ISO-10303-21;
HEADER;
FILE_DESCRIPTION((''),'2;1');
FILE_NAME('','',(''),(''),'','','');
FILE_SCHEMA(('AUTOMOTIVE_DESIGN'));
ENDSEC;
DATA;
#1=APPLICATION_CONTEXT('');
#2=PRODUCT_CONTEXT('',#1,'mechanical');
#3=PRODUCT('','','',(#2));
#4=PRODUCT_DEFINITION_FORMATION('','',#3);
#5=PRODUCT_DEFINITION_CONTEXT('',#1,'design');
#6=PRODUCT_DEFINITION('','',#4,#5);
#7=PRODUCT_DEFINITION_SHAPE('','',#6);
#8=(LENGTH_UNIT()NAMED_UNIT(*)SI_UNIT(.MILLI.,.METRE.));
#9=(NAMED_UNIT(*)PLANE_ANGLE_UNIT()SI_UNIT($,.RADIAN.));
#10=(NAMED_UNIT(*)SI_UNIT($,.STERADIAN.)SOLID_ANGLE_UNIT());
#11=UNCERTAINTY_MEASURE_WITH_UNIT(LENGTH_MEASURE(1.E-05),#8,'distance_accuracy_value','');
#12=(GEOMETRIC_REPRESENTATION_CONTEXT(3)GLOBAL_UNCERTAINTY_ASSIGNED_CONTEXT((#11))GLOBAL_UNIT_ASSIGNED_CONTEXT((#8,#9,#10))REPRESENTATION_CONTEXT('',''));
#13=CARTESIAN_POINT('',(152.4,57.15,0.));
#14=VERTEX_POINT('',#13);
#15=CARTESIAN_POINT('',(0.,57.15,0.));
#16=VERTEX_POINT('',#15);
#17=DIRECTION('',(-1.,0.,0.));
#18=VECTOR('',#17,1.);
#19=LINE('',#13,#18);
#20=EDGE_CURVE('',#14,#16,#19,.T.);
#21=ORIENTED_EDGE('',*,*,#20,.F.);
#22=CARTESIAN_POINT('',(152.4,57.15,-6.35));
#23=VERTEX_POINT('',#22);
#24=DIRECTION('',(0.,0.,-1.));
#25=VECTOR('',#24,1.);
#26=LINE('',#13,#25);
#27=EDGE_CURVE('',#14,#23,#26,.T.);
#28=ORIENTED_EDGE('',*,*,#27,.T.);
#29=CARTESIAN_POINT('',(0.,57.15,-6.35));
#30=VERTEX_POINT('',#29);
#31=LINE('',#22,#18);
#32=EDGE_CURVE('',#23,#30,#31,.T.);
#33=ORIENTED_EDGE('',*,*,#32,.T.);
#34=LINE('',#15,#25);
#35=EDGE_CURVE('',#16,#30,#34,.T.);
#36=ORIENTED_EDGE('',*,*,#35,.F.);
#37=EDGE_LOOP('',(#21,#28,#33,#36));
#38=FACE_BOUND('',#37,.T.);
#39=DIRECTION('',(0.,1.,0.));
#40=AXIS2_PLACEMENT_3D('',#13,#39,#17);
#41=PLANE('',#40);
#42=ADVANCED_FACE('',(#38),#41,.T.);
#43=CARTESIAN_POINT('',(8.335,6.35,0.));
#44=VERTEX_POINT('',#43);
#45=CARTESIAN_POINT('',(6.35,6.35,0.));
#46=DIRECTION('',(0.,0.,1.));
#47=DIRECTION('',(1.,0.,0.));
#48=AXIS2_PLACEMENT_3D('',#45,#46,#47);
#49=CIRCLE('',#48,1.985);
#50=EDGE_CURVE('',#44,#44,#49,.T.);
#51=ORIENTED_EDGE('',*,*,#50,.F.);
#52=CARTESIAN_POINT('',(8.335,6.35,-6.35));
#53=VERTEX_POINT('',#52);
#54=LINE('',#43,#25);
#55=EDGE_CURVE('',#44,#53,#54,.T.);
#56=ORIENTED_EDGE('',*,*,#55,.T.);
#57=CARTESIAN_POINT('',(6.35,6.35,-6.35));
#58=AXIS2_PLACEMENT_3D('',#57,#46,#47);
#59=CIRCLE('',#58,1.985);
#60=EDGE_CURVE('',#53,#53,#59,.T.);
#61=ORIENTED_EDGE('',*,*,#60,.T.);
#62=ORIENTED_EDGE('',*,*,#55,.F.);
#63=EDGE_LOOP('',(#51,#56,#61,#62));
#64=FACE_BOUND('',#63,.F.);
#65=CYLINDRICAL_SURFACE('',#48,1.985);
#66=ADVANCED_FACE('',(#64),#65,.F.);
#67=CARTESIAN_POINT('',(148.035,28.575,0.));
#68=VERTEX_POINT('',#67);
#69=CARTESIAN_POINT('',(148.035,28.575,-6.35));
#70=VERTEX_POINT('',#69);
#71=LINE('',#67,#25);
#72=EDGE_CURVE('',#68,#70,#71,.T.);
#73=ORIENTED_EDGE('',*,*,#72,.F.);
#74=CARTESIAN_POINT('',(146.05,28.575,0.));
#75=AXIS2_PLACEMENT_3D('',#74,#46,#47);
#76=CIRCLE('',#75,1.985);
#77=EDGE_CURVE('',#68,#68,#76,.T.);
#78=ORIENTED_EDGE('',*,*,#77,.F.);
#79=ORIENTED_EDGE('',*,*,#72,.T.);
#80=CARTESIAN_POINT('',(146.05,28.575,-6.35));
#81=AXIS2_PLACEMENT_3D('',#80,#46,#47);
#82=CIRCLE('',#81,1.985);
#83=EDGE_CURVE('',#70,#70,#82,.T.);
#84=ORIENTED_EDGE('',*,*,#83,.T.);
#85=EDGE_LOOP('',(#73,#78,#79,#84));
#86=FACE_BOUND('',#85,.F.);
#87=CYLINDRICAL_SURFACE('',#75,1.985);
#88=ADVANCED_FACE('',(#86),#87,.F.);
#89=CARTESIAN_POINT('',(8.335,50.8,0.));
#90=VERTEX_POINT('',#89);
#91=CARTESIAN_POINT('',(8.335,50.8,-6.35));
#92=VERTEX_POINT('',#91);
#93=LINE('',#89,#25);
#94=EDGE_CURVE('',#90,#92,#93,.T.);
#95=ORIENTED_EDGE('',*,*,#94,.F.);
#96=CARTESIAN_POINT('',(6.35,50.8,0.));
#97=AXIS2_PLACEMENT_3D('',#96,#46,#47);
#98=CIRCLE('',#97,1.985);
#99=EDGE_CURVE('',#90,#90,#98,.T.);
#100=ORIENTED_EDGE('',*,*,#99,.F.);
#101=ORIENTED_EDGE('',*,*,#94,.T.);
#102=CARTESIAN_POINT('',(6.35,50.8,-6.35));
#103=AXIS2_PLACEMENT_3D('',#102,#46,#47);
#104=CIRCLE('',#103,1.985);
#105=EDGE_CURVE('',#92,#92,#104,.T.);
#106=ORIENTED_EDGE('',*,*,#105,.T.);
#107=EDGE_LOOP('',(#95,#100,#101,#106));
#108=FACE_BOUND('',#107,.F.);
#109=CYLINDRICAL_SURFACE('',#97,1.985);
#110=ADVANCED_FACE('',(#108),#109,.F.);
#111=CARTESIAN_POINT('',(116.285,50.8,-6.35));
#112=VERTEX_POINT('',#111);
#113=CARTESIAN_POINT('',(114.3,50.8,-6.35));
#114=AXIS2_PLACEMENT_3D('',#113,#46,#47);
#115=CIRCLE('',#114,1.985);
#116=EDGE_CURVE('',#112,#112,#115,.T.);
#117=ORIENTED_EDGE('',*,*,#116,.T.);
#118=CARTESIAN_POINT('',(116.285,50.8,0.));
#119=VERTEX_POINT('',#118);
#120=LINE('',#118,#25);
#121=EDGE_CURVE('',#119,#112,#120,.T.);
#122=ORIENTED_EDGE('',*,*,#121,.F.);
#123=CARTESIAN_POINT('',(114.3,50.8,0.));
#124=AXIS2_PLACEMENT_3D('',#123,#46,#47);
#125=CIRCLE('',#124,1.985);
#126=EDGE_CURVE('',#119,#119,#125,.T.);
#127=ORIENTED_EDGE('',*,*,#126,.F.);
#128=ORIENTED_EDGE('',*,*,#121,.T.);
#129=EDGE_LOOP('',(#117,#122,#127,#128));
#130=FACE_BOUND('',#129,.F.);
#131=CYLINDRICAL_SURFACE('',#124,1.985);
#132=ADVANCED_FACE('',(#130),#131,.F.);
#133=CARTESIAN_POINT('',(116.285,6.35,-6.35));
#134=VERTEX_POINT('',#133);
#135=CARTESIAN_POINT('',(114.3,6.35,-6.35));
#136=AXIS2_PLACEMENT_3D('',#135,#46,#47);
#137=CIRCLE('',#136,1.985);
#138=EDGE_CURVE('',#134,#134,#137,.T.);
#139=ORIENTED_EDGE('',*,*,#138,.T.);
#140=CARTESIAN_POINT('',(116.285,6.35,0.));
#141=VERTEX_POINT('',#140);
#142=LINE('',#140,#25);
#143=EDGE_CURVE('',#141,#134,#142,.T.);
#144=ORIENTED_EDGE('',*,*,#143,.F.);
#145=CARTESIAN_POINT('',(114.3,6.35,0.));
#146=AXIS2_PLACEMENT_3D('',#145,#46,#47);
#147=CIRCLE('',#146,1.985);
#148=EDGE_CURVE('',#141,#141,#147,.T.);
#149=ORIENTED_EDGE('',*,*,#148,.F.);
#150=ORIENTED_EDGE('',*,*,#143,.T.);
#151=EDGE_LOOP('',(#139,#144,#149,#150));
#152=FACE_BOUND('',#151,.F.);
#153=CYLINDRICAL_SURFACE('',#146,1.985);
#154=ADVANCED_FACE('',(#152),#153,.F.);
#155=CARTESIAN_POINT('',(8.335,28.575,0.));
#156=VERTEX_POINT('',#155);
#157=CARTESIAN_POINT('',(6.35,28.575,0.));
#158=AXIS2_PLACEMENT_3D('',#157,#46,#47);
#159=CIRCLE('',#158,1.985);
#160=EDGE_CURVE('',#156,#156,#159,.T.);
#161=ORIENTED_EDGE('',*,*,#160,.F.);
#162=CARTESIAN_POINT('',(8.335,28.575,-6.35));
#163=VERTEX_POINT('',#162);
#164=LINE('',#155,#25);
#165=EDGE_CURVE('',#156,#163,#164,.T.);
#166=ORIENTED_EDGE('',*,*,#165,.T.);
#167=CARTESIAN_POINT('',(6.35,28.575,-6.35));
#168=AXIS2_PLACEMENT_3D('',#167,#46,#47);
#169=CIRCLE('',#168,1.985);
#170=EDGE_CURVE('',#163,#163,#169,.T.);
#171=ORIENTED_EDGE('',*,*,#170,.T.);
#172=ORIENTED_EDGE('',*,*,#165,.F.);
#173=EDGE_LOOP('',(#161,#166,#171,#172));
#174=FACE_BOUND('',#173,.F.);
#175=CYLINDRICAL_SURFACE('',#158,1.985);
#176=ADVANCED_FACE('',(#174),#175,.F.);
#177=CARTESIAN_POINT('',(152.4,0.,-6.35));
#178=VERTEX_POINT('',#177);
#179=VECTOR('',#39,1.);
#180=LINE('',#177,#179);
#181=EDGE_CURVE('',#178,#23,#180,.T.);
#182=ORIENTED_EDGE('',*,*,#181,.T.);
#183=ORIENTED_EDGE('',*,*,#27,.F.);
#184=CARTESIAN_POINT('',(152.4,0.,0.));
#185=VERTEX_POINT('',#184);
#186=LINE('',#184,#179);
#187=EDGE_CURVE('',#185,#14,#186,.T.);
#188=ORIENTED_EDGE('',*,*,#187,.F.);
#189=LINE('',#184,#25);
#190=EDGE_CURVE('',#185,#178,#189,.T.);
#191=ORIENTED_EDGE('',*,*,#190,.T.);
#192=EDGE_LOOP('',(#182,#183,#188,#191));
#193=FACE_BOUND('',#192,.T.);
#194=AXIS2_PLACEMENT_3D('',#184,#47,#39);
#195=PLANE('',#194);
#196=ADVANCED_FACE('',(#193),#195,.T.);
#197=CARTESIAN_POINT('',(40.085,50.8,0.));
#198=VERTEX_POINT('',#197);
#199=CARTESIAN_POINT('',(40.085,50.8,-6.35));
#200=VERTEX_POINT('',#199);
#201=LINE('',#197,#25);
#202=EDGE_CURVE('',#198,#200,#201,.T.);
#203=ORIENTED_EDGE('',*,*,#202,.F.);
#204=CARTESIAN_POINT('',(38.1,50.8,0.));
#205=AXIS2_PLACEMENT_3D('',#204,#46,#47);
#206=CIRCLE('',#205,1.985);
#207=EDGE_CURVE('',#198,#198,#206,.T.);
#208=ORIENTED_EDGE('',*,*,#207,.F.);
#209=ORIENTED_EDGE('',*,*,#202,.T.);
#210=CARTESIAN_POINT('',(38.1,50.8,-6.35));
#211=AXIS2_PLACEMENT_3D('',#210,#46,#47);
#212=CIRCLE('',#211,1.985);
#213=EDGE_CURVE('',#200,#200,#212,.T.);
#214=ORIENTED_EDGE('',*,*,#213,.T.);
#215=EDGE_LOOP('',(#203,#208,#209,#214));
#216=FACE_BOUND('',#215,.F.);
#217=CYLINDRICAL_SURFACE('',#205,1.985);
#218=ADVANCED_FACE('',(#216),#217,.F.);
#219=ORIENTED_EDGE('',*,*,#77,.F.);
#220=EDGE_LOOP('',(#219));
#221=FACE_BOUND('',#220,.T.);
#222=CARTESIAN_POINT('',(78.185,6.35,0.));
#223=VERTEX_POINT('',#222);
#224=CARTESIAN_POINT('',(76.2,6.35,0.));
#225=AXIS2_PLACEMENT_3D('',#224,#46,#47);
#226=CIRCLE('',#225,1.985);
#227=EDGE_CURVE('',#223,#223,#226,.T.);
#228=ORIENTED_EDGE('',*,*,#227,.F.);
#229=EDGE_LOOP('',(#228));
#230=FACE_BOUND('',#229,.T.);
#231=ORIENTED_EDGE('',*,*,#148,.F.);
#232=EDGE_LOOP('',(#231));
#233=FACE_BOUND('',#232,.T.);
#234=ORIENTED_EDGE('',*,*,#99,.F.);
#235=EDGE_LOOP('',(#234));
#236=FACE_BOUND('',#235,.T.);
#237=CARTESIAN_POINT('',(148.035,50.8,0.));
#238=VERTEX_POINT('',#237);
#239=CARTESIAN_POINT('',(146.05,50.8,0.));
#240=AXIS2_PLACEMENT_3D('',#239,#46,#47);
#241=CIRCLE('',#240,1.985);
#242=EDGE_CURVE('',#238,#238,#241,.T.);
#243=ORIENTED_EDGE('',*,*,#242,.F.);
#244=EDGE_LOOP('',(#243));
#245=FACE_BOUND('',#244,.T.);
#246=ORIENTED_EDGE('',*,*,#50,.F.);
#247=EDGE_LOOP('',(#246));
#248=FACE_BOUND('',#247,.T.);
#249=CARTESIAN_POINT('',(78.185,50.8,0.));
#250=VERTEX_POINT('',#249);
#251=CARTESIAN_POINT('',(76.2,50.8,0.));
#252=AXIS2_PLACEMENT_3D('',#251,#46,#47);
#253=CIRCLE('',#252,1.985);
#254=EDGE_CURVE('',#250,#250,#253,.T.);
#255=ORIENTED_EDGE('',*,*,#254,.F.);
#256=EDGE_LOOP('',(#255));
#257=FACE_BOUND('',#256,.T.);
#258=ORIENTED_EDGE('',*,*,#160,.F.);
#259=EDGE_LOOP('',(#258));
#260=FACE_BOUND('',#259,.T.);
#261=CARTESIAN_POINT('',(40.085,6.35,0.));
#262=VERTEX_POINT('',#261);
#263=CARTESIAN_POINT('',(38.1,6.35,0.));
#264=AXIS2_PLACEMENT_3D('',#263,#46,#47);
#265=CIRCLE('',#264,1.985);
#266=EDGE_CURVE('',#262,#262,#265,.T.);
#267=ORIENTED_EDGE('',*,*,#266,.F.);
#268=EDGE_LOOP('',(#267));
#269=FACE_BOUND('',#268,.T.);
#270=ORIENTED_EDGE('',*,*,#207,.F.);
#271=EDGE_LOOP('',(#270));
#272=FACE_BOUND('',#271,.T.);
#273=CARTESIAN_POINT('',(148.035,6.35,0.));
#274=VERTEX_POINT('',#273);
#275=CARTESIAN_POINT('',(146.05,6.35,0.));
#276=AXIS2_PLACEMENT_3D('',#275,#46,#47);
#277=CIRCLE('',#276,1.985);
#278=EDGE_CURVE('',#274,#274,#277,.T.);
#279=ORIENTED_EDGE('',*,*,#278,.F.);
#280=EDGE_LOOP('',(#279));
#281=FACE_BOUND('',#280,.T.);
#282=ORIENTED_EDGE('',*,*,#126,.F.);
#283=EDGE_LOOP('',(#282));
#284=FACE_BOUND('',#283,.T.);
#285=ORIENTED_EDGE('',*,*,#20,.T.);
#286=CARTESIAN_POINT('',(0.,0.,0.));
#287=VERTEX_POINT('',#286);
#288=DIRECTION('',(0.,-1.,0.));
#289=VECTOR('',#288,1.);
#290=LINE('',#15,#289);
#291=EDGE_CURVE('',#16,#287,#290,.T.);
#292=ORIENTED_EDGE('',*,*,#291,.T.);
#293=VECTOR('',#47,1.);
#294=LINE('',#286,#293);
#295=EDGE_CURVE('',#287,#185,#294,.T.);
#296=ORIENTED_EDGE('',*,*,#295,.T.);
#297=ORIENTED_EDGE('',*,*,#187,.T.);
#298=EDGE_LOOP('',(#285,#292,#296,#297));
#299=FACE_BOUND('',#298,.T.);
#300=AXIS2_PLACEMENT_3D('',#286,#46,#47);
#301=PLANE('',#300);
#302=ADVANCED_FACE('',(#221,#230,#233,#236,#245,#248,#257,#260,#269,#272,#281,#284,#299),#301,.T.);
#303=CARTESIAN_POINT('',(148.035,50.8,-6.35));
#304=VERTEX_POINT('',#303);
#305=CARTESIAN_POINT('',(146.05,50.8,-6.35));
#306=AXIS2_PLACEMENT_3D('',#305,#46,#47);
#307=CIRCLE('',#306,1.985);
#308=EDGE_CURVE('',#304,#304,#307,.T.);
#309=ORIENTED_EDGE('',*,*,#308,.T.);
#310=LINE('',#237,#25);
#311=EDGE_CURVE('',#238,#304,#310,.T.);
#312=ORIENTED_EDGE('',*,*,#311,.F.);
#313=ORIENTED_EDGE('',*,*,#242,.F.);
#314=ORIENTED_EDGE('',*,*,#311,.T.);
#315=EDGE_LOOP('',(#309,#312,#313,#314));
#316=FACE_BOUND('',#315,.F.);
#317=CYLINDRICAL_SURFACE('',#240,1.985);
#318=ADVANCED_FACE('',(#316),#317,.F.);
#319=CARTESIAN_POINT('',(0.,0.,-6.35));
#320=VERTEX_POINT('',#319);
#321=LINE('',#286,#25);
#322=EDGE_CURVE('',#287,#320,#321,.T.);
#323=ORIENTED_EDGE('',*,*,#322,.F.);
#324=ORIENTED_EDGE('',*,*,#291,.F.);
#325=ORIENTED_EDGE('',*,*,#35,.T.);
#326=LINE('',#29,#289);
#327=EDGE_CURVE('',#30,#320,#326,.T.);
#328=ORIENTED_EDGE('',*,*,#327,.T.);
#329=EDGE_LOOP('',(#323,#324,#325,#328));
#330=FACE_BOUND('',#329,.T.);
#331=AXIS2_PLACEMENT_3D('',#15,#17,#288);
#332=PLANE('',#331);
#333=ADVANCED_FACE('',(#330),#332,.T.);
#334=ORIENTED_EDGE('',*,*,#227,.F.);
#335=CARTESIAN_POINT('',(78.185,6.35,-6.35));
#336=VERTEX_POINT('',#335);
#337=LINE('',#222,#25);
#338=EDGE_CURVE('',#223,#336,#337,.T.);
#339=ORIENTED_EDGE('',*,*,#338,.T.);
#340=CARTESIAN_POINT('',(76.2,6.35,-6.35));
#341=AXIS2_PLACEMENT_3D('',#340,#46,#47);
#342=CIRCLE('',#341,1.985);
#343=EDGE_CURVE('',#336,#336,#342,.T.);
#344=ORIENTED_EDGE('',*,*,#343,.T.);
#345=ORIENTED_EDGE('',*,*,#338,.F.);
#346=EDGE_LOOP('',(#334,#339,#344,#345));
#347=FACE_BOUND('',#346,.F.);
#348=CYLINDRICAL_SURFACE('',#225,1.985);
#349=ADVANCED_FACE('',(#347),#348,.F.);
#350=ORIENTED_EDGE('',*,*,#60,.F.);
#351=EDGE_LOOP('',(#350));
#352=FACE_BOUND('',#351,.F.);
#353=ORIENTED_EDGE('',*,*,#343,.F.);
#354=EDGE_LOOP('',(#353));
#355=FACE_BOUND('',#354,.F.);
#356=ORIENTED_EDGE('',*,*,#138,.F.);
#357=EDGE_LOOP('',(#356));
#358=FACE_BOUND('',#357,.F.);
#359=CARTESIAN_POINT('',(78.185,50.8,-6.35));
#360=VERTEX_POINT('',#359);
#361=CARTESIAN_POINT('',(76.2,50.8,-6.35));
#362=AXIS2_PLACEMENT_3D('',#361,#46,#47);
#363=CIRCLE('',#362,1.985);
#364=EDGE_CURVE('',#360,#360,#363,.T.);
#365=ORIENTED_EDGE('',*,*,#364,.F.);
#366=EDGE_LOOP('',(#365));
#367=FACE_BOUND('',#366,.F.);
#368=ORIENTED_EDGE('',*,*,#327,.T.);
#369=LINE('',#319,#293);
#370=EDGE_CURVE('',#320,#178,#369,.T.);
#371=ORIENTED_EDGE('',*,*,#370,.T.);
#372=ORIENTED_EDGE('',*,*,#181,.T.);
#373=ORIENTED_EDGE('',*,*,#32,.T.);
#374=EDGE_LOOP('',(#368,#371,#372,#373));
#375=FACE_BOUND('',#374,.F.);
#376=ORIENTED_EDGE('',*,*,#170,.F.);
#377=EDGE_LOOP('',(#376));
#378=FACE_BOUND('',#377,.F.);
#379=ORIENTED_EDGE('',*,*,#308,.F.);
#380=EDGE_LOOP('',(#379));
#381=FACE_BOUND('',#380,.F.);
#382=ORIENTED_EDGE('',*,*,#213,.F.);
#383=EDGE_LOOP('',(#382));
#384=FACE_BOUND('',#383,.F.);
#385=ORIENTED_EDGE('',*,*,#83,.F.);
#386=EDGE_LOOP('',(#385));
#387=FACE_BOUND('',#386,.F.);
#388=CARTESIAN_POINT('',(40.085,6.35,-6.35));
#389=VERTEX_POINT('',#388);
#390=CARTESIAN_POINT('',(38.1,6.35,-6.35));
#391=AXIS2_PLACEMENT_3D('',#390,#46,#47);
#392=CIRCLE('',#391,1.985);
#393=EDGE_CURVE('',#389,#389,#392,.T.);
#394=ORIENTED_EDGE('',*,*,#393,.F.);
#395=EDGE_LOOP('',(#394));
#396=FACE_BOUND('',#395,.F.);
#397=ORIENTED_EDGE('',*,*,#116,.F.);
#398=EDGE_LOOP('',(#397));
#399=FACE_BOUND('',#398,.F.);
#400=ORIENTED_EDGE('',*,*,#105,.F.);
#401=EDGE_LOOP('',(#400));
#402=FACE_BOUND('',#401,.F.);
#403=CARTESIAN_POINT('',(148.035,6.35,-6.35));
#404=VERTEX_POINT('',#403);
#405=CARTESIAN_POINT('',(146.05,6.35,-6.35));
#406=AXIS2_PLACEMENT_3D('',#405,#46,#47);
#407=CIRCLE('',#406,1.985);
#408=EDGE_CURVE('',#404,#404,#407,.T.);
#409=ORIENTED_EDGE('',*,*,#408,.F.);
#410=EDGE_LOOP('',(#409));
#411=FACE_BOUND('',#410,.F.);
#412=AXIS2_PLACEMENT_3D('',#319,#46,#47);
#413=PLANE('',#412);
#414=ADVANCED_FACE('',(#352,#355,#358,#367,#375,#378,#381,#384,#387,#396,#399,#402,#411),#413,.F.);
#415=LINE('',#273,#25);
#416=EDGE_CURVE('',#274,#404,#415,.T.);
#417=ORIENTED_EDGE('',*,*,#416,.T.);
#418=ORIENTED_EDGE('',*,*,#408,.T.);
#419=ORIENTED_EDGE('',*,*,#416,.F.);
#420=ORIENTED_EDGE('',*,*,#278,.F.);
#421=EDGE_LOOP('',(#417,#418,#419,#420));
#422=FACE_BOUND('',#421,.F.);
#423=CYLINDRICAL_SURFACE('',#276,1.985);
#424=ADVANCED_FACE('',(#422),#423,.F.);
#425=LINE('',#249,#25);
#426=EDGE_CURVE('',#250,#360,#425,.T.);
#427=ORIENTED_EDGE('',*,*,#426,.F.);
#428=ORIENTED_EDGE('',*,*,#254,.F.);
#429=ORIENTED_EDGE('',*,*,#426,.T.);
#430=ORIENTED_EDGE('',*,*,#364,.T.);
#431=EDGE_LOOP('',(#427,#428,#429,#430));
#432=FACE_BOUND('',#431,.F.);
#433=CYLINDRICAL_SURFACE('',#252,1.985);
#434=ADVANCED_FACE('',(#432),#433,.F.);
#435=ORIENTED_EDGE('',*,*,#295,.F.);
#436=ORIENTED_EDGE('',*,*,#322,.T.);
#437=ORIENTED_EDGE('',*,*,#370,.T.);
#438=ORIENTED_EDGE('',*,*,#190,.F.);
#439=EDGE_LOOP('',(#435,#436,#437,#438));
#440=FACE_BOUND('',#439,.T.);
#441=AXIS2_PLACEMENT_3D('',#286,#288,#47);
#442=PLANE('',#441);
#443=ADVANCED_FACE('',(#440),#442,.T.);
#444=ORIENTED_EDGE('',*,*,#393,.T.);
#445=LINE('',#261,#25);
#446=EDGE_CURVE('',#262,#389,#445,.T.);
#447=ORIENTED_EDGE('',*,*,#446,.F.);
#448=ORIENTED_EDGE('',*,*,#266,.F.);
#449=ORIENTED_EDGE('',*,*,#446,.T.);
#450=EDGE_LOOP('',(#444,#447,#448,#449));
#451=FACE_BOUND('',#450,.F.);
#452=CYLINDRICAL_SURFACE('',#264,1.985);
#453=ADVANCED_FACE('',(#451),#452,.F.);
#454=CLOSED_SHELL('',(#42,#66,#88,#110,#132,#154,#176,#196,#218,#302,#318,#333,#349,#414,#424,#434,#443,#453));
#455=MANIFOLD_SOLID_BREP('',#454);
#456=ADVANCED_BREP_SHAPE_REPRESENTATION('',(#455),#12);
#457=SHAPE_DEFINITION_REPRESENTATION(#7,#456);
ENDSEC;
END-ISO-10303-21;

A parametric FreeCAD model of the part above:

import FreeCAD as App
import Part
import Sketcher

V = App.Vector
Q = App.Units.Quantity

doc = App.newDocument("Part")
params = doc.addObject("Spreadsheet::Sheet", "Params")
for row, (alias, value) in enumerate([
    ("sketch1_width", "6 in"),
    ("sketch1_height", "2.25 in"),
    ("pad1_length", "0.25 in"),
], start=1):
    params.set(f"A{row}", alias)
    params.set(f"B{row}", "=" + value)
    params.setAlias(f"B{row}", alias)

body = doc.addObject("PartDesign::Body", "Body")

# Sketch on XY plane
sketch1 = doc.addObject("Sketcher::SketchObject", "Sketch")
body.addObject(sketch1)
sketch1.AttachmentSupport = (doc.XY_Plane, [""])
sketch1.MapMode = "FlatFace"
sketch1.addGeometry(Part.LineSegment(V(0, 57.1, 0), V(0, 0, 0)), False)
sketch1.addGeometry(Part.LineSegment(V(0, 0, 0), V(152.4, 0, 0)), False)
sketch1.addGeometry(Part.LineSegment(V(152.4, 0, 0), V(152.4, 57.1, 0)), False)
sketch1.addGeometry(Part.LineSegment(V(152.4, 57.1, 0), V(0, 57.1, 0)), False)
sketch1.addGeometry(Part.Circle(V(6.3, 6.3, 0), V(0, 0, 1), 2), False)
sketch1.addGeometry(Part.Circle(V(38.1, 6.3, 0), V(0, 0, 1), 2), False)
sketch1.addGeometry(Part.Circle(V(76.2, 6.3, 0), V(0, 0, 1), 2), False)
sketch1.addGeometry(Part.Circle(V(114.3, 6.3, 0), V(0, 0, 1), 2), False)
sketch1.addGeometry(Part.Circle(V(146.1, 6.3, 0), V(0, 0, 1), 2), False)
sketch1.addGeometry(Part.Circle(V(6.3, 28.6, 0), V(0, 0, 1), 2), False)
sketch1.addGeometry(Part.Circle(V(6.3, 50.8, 0), V(0, 0, 1), 2), False)
sketch1.addGeometry(Part.Circle(V(38.1, 50.8, 0), V(0, 0, 1), 2), False)
sketch1.addGeometry(Part.Circle(V(146.1, 28.6, 0), V(0, 0, 1), 2), False)
sketch1.addGeometry(Part.Circle(V(76.2, 50.8, 0), V(0, 0, 1), 2), False)
sketch1.addGeometry(Part.Circle(V(114.3, 50.8, 0), V(0, 0, 1), 2), False)
sketch1.addGeometry(Part.Circle(V(146.1, 50.8, 0), V(0, 0, 1), 2), False)
sketch1.addConstraint(Sketcher.Constraint("Coincident", 0, 2, 1, 1))
sketch1.addConstraint(Sketcher.Constraint("Coincident", 1, 2, 2, 1))
sketch1.addConstraint(Sketcher.Constraint("Coincident", 2, 2, 3, 1))
sketch1.addConstraint(Sketcher.Constraint("Coincident", 3, 2, 0, 1))
sketch1.addConstraint(Sketcher.Constraint("Vertical", 0))
sketch1.addConstraint(Sketcher.Constraint("Horizontal", 1))
sketch1.addConstraint(Sketcher.Constraint("Vertical", 2))
sketch1.addConstraint(Sketcher.Constraint("Horizontal", 3))
sketch1.addConstraint(Sketcher.Constraint("Coincident", 0, 2, -1, 1))
sketch1.addConstraint(Sketcher.Constraint("Equal", 4, 5))
sketch1.addConstraint(Sketcher.Constraint("Equal", 5, 6))
sketch1.addConstraint(Sketcher.Constraint("Equal", 6, 7))
sketch1.addConstraint(Sketcher.Constraint("Equal", 7, 8))
sketch1.addConstraint(Sketcher.Constraint("Equal", 8, 9))
sketch1.addConstraint(Sketcher.Constraint("Equal", 9, 10))
sketch1.addConstraint(Sketcher.Constraint("Equal", 10, 11))
sketch1.addConstraint(Sketcher.Constraint("Equal", 11, 12))
sketch1.addConstraint(Sketcher.Constraint("Equal", 12, 13))
sketch1.addConstraint(Sketcher.Constraint("Equal", 13, 14))
sketch1.addConstraint(Sketcher.Constraint("Equal", 14, 15))
sketch1.addConstraint(Sketcher.Constraint("Horizontal", 4, 3, 5, 3))
sketch1.addConstraint(Sketcher.Constraint("Horizontal", 5, 3, 6, 3))
sketch1.addConstraint(Sketcher.Constraint("Horizontal", 6, 3, 7, 3))
sketch1.addConstraint(Sketcher.Constraint("Horizontal", 7, 3, 8, 3))
sketch1.addConstraint(Sketcher.Constraint("Horizontal", 10, 3, 11, 3))
sketch1.addConstraint(Sketcher.Constraint("Horizontal", 9, 3, 12, 3))
sketch1.addConstraint(Sketcher.Constraint("Horizontal", 11, 3, 13, 3))
sketch1.addConstraint(Sketcher.Constraint("Horizontal", 13, 3, 14, 3))
sketch1.addConstraint(Sketcher.Constraint("Horizontal", 14, 3, 15, 3))
sketch1.addConstraint(Sketcher.Constraint("Vertical", 4, 3, 9, 3))
sketch1.addConstraint(Sketcher.Constraint("Vertical", 9, 3, 10, 3))
sketch1.addConstraint(Sketcher.Constraint("Vertical", 5, 3, 11, 3))
sketch1.addConstraint(Sketcher.Constraint("Vertical", 8, 3, 12, 3))
sketch1.addConstraint(Sketcher.Constraint("Vertical", 6, 3, 13, 3))
sketch1.addConstraint(Sketcher.Constraint("Vertical", 7, 3, 14, 3))
sketch1.addConstraint(Sketcher.Constraint("Vertical", 12, 3, 15, 3))
sketch1.addConstraint(Sketcher.Constraint("DistanceX", 1, 1, 1, 2, Q("6 in")))
sketch1.addConstraint(Sketcher.Constraint("Diameter", 4, Q("0.1563 in")))
sketch1.addConstraint(Sketcher.Constraint("DistanceY", 0, 2, 0, 1, Q("2.25 in")))
sketch1.addConstraint(Sketcher.Constraint("DistanceX", -1, 1, 6, 3, Q("3 in")))
sketch1.addConstraint(Sketcher.Constraint("DistanceY", -1, 1, 10, 3, Q("2 in")))
sketch1.addConstraint(Sketcher.Constraint("DistanceX", 5, 3, 7, 3, Q("3 in")))
sketch1.addConstraint(Sketcher.Constraint("DistanceY", 8, 3, 2, 2, Q("2 in")))
sketch1.addConstraint(Sketcher.Constraint("DistanceX", -1, 1, 5, 3, Q("1.5 in")))
sketch1.addConstraint(Sketcher.Constraint("DistanceX", 4, 3, 8, 3, Q("5.5 in")))
sketch1.addConstraint(Sketcher.Constraint("DistanceX", -1, 1, 4, 3, Q("0.25 in")))
sketch1.addConstraint(Sketcher.Constraint("DistanceY", -1, 1, 9, 3, Q("1.125 in")))
sketch1.setExpression("Constraints[36]", "Params.sketch1_width")
sketch1.setExpression("Constraints[38]", "Params.sketch1_height")
pad1 = doc.addObject("PartDesign::Pad", "Pad")
body.addObject(pad1)
pad1.Profile = sketch1
pad1.setExpression("Length", "Params.pad1_length")
pad1.Reversed = True

doc.recompute()
